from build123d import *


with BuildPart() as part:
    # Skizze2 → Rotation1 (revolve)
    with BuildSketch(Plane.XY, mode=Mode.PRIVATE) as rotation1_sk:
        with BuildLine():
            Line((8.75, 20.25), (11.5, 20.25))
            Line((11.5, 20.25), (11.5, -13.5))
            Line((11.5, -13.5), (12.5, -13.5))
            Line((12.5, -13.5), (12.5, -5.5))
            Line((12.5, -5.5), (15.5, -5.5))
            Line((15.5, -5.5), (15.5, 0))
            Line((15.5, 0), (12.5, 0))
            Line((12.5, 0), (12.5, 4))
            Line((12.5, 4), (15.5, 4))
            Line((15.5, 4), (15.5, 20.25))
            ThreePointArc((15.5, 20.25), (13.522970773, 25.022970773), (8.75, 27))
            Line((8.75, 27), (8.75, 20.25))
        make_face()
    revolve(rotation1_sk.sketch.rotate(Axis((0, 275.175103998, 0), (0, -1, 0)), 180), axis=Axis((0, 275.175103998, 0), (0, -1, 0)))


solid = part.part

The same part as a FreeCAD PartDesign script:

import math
import FreeCAD as App
import Part
import Sketcher

V = App.Vector
Q = App.Units.Quantity

doc = App.newDocument("Part")
body = doc.addObject("PartDesign::Body", "Body")

# Sketch on XY plane
sketch1 = doc.addObject("Sketcher::SketchObject", "Sketch")
body.addObject(sketch1)
sketch1.AttachmentSupport = (doc.XY_Plane, [""])
sketch1.MapMode = "FlatFace"
sketch1.addGeometry([
    Part.LineSegment(V(8.75, 20.25, 0), V(11.5, 20.25, 0)),  # 0
    Part.LineSegment(V(11.5, 20.25, 0), V(11.5, -13.5, 0)),  # 1
    Part.LineSegment(V(11.5, -13.5, 0), V(12.5, -13.5, 0)),  # 2
    Part.LineSegment(V(12.5, -13.5, 0), V(12.5, -5.5, 0)),  # 3
    Part.LineSegment(V(12.5, -5.5, 0), V(15.5, -5.5, 0)),  # 4
    Part.LineSegment(V(15.5, -5.5, 0), V(15.5, 0, 0)),  # 5
    Part.LineSegment(V(15.5, 0, 0), V(12.5, 0, 0)),  # 6
    Part.LineSegment(V(12.5, 0, 0), V(12.5, 4, 0)),  # 7
    Part.LineSegment(V(12.5, 4, 0), V(15.5, 4, 0)),  # 8
    Part.LineSegment(V(15.5, 4, 0), V(15.5, 20.25, 0)),  # 9
    Part.ArcOfCircle(Part.Circle(V(8.75, 20.25, 0), V(0, 0, 1), 6.75), math.radians(0), math.radians(90)),  # 10
    Part.LineSegment(V(8.75, 27, 0), V(8.75, 20.25, 0)),  # 11
], False)
sketch1.addConstraint([
    Sketcher.Constraint("Coincident", 0, 2, 1, 1),
    Sketcher.Constraint("Coincident", 1, 2, 2, 1),
    Sketcher.Constraint("Coincident", 2, 2, 3, 1),
    Sketcher.Constraint("Coincident", 3, 2, 4, 1),
    Sketcher.Constraint("Coincident", 4, 2, 5, 1),
    Sketcher.Constraint("Coincident", 5, 2, 6, 1),
    Sketcher.Constraint("Coincident", 6, 2, 7, 1),
    Sketcher.Constraint("Coincident", 7, 2, 8, 1),
    Sketcher.Constraint("Coincident", 8, 2, 9, 1),
    Sketcher.Constraint("Tangent", 9, 2, 10, 1),
    Sketcher.Constraint("Coincident", 10, 2, 11, 1),
    Sketcher.Constraint("Coincident", 11, 2, 0, 1),
    Sketcher.Constraint("Horizontal", 0),
    Sketcher.Constraint("Vertical", 1),
    Sketcher.Constraint("Horizontal", 2),
    Sketcher.Constraint("Vertical", 3),
    Sketcher.Constraint("Horizontal", 4),
    Sketcher.Constraint("Vertical", 5),
    Sketcher.Constraint("Horizontal", 6),
    Sketcher.Constraint("Vertical", 7),
    Sketcher.Constraint("Horizontal", 8),
    Sketcher.Constraint("Vertical", 9),
    Sketcher.Constraint("Vertical", 11),
    Sketcher.Constraint("Coincident", 11, 2, 10, 3),
    Sketcher.Constraint("PointOnObject", 5, 2, -1),
    Sketcher.Constraint("Vertical", 3, 2, 6, 2),
    Sketcher.Constraint("Vertical", 5, 2, 8, 2),
    Sketcher.Constraint("DistanceX", 2, 1, 2, 2, Q("1 mm")),
    Sketcher.Constraint("DistanceX", 4, 1, 4, 2, Q("3 mm")),
    Sketcher.Constraint("DistanceY", 3, 1, 3, 2, Q("8 mm")),
    Sketcher.Constraint("DistanceY", 7, 1, 7, 2, Q("4 mm")),
    Sketcher.Constraint("Radius", 10, Q("6.75 mm")),
    Sketcher.Constraint("DistanceY", 5, 1, 5, 2, Q("5.5 mm")),
    Sketcher.Constraint("DistanceY", -1, 1, 10, 2, Q("27 mm")),
    Sketcher.Constraint("DistanceX", -1, 1, 0, 2, Q("11.5 mm")),
])
revolution = doc.addObject("PartDesign::Revolution", "Revolution")
body.addObject(revolution)
revolution.Profile = sketch1
revolution.ReferenceAxis = (sketch1, ["V_Axis"])
revolution.Angle = 360

doc.recompute()
